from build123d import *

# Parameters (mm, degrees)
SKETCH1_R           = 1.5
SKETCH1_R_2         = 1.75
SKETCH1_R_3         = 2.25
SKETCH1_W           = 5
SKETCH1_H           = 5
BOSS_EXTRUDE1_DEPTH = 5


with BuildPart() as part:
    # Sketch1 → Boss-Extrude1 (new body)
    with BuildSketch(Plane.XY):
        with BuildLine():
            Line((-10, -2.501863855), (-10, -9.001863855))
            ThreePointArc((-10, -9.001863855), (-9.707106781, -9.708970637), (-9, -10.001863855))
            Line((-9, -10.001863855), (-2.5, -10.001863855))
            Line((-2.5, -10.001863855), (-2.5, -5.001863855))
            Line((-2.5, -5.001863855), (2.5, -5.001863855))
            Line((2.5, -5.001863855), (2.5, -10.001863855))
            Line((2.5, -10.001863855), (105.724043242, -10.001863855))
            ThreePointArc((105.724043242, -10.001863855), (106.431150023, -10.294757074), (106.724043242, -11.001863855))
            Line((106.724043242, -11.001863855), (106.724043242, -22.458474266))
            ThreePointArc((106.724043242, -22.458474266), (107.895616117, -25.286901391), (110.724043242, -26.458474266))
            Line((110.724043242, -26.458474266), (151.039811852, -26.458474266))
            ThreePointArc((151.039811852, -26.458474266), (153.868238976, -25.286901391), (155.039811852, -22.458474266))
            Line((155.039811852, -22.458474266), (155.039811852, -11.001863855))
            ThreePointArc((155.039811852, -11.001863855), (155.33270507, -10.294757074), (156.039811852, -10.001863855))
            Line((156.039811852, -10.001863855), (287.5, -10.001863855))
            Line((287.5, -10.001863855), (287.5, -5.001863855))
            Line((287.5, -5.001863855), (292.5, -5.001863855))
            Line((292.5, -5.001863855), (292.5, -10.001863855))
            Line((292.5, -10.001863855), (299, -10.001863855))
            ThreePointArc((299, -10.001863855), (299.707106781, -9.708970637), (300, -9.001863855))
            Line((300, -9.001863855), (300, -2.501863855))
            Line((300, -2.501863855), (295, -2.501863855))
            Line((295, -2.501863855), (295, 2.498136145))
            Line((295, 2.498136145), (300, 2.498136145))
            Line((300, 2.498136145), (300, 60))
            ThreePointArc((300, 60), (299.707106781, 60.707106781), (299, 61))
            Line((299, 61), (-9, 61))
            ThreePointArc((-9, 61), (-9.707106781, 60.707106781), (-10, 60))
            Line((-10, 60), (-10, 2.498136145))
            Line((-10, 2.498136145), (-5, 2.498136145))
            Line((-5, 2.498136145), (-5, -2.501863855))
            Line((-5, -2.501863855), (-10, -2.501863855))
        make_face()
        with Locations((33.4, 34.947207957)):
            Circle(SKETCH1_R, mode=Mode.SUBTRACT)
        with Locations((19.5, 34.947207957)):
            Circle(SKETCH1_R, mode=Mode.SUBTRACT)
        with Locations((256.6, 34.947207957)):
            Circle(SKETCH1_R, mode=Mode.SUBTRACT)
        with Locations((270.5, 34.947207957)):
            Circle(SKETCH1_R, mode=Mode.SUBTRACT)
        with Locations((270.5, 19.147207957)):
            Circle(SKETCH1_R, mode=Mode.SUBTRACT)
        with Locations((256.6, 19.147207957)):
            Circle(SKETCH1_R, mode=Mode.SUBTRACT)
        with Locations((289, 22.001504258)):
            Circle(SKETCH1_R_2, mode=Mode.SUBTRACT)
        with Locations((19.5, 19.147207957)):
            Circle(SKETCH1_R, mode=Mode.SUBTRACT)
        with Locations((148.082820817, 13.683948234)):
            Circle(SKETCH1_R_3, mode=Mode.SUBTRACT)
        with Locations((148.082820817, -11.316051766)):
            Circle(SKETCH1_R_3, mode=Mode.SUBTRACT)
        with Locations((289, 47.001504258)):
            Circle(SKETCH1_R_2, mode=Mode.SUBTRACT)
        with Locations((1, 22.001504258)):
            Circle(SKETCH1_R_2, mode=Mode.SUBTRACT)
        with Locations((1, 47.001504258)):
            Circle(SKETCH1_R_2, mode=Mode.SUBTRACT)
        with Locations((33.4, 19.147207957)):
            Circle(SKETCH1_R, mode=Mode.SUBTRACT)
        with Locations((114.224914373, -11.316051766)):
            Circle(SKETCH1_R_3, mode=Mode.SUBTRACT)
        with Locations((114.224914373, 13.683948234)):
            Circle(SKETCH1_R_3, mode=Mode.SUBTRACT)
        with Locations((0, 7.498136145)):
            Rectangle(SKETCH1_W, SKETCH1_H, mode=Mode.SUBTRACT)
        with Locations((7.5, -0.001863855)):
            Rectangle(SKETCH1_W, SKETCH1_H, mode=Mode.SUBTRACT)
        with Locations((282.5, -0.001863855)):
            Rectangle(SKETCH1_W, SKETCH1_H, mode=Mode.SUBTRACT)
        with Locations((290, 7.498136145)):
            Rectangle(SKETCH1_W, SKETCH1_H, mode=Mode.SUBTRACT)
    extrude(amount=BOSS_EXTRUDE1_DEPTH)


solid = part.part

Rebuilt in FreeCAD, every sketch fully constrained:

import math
import FreeCAD as App
import Part
import Sketcher


def add_polygon(sketch, points):
    """Adds a closed chain of lines whose ends are joined by coincident constraints."""
    first, n = sketch.GeometryCount, len(points)
    for a, b in zip(points, points[1:] + points[:1]):
        sketch.addGeometry(Part.LineSegment(App.Vector(*a, 0), App.Vector(*b, 0)), False)
    for i in range(n):
        sketch.addConstraint(Sketcher.Constraint("Coincident", first + i, 2, first + (i + 1) % n, 1))

doc = App.newDocument("Part")
params = doc.addObject("Spreadsheet::Sheet", "Params")
for row, (alias, value) in enumerate([
    ("sketch1_diameter", "3 mm"),
    ("sketch1_radius", "1 mm"),
    ("sketch1_radius2", "4 mm"),
    ("sketch1_diameter2", "4.5 mm"),
    ("sketch1_diameter3", "3.5 mm"),
    ("pad1_length", "5 mm"),
], start=1):
    params.set(f"A{row}", alias)
    params.set(f"B{row}", "=" + value)
    params.setAlias(f"B{row}", alias)

body = doc.addObject("PartDesign::Body", "Body")

# Sketch on XY plane
sketch1 = body.newObject("Sketcher::SketchObject", "Sketch")
sketch1.AttachmentSupport = (doc.getObject("XY_Plane"), [""])
sketch1.MapMode = "FlatFace"
sketch1.addGeometry(Part.LineSegment(App.Vector(-10, -2.5, 0), App.Vector(-10, -9, 0)), False)  # 0
sketch1.addGeometry(Part.ArcOfCircle(Part.Circle(App.Vector(-9, -9, 0), App.Vector(0, 0, 1), 1), math.radians(180), math.radians(270)), False)  # 1
sketch1.addGeometry(Part.LineSegment(App.Vector(-9, -10, 0), App.Vector(-2.5, -10, 0)), False)  # 2
sketch1.addGeometry(Part.LineSegment(App.Vector(-2.5, -10, 0), App.Vector(-2.5, -5, 0)), False)  # 3
sketch1.addGeometry(Part.LineSegment(App.Vector(-2.5, -5, 0), App.Vector(2.5, -5, 0)), False)  # 4
sketch1.addGeometry(Part.LineSegment(App.Vector(2.5, -5, 0), App.Vector(2.5, -10, 0)), False)  # 5
sketch1.addGeometry(Part.LineSegment(App.Vector(2.5, -10, 0), App.Vector(105.7, -10, 0)), False)  # 6
sketch1.addGeometry(Part.ArcOfCircle(Part.Circle(App.Vector(105.7, -11, 0), App.Vector(0, 0, 1), 1), math.radians(0), math.radians(90)), False)  # 7
sketch1.addGeometry(Part.LineSegment(App.Vector(106.7, -11, 0), App.Vector(106.7, -22.5, 0)), False)  # 8
sketch1.addGeometry(Part.ArcOfCircle(Part.Circle(App.Vector(110.7, -22.5, 0), App.Vector(0, 0, 1), 4), math.radians(180), math.radians(270)), False)  # 9
sketch1.addGeometry(Part.LineSegment(App.Vector(110.7, -26.5, 0), App.Vector(151, -26.5, 0)), False)  # 10
sketch1.addGeometry(Part.ArcOfCircle(Part.Circle(App.Vector(151, -22.5, 0), App.Vector(0, 0, 1), 4), math.radians(-90), math.radians(0)), False)  # 11
sketch1.addGeometry(Part.LineSegment(App.Vector(155, -22.5, 0), App.Vector(155, -11, 0)), False)  # 12
sketch1.addGeometry(Part.ArcOfCircle(Part.Circle(App.Vector(156, -11, 0), App.Vector(0, 0, 1), 1), math.radians(90), math.radians(180)), False)  # 13
sketch1.addGeometry(Part.LineSegment(App.Vector(156, -10, 0), App.Vector(287.5, -10, 0)), False)  # 14
sketch1.addGeometry(Part.LineSegment(App.Vector(287.5, -10, 0), App.Vector(287.5, -5, 0)), False)  # 15
sketch1.addGeometry(Part.LineSegment(App.Vector(287.5, -5, 0), App.Vector(292.5, -5, 0)), False)  # 16
sketch1.addGeometry(Part.LineSegment(App.Vector(292.5, -5, 0), App.Vector(292.5, -10, 0)), False)  # 17
sketch1.addGeometry(Part.LineSegment(App.Vector(292.5, -10, 0), App.Vector(299, -10, 0)), False)  # 18
sketch1.addGeometry(Part.ArcOfCircle(Part.Circle(App.Vector(299, -9, 0), App.Vector(0, 0, 1), 1), math.radians(-90), math.radians(0)), False)  # 19
sketch1.addGeometry(Part.LineSegment(App.Vector(300, -9, 0), App.Vector(300, -2.5, 0)), False)  # 20
sketch1.addGeometry(Part.LineSegment(App.Vector(300, -2.5, 0), App.Vector(295, -2.5, 0)), False)  # 21
sketch1.addGeometry(Part.LineSegment(App.Vector(295, -2.5, 0), App.Vector(295, 2.5, 0)), False)  # 22
sketch1.addGeometry(Part.LineSegment(App.Vector(295, 2.5, 0), App.Vector(300, 2.5, 0)), False)  # 23
sketch1.addGeometry(Part.LineSegment(App.Vector(300, 2.5, 0), App.Vector(300, 60, 0)), False)  # 24
sketch1.addGeometry(Part.ArcOfCircle(Part.Circle(App.Vector(299, 60, 0), App.Vector(0, 0, 1), 1), math.radians(0), math.radians(90)), False)  # 25
sketch1.addGeometry(Part.LineSegment(App.Vector(299, 61, 0), App.Vector(-9, 61, 0)), False)  # 26
sketch1.addGeometry(Part.ArcOfCircle(Part.Circle(App.Vector(-9, 60, 0), App.Vector(0, 0, 1), 1), math.radians(90), math.radians(180)), False)  # 27
sketch1.addGeometry(Part.LineSegment(App.Vector(-10, 60, 0), App.Vector(-10, 2.5, 0)), False)  # 28
sketch1.addGeometry(Part.LineSegment(App.Vector(-10, 2.5, 0), App.Vector(-5, 2.5, 0)), False)  # 29
sketch1.addGeometry(Part.LineSegment(App.Vector(-5, 2.5, 0), App.Vector(-5, -2.5, 0)), False)  # 30
sketch1.addGeometry(Part.LineSegment(App.Vector(-5, -2.5, 0), App.Vector(-10, -2.5, 0)), False)  # 31
add_polygon(sketch1, [(10, -2.5), (5, -2.5), (5, 2.5), (10, 2.5)])  # lines 32-35
sketch1.addGeometry(Part.Circle(App.Vector(114.2, -11.3, 0), App.Vector(0, 0, 1), 2.2), False)  # 36
add_polygon(sketch1, [(2.5, 5), (-2.5, 5), (-2.5, 10), (2.5, 10)])  # lines 37-40
sketch1.addGeometry(Part.Circle(App.Vector(114.2, 13.7, 0), App.Vector(0, 0, 1), 2.2), False)  # 41
sketch1.addGeometry(Part.Circle(App.Vector(148.1, -11.3, 0), App.Vector(0, 0, 1), 2.2), False)  # 42
add_polygon(sketch1, [(285, -2.5), (280, -2.5), (280, 2.5), (285, 2.5)])  # lines 43-46
sketch1.addGeometry(Part.Circle(App.Vector(148.1, 13.7, 0), App.Vector(0, 0, 1), 2.2), False)  # 47
add_polygon(sketch1, [(292.5, 5), (287.5, 5), (287.5, 10), (292.5, 10)])  # lines 48-51
sketch1.addGeometry(Part.Circle(App.Vector(19.5, 19.1, 0), App.Vector(0, 0, 1), 1.5), False)  # 52
sketch1.addGeometry(Part.Circle(App.Vector(33.4, 19.1, 0), App.Vector(0, 0, 1), 1.5), False)  # 53
sketch1.addGeometry(Part.Circle(App.Vector(1, 22, 0), App.Vector(0, 0, 1), 1.8), False)  # 54
sketch1.addGeometry(Part.Circle(App.Vector(19.5, 34.9, 0), App.Vector(0, 0, 1), 1.5), False)  # 55
sketch1.addGeometry(Part.Circle(App.Vector(33.4, 34.9, 0), App.Vector(0, 0, 1), 1.5), False)  # 56
sketch1.addGeometry(Part.Circle(App.Vector(1, 47, 0), App.Vector(0, 0, 1), 1.8), False)  # 57
sketch1.addGeometry(Part.Circle(App.Vector(256.6, 19.1, 0), App.Vector(0, 0, 1), 1.5), False)  # 58
sketch1.addGeometry(Part.Circle(App.Vector(270.5, 19.1, 0), App.Vector(0, 0, 1), 1.5), False)  # 59
sketch1.addGeometry(Part.Circle(App.Vector(289, 22, 0), App.Vector(0, 0, 1), 1.8), False)  # 60
sketch1.addGeometry(Part.Circle(App.Vector(256.6, 34.9, 0), App.Vector(0, 0, 1), 1.5), False)  # 61
sketch1.addGeometry(Part.Circle(App.Vector(270.5, 34.9, 0), App.Vector(0, 0, 1), 1.5), False)  # 62
sketch1.addGeometry(Part.Circle(App.Vector(289, 47, 0), App.Vector(0, 0, 1), 1.8), False)  # 63
sketch1.addConstraint([
    Sketcher.Constraint("Tangent", 0, 2, 1, 1),
    Sketcher.Constraint("Tangent", 1, 2, 2, 1),
    Sketcher.Constraint("Coincident", 2, 2, 3, 1),
    Sketcher.Constraint("Coincident", 3, 2, 4, 1),
    Sketcher.Constraint("Coincident", 4, 2, 5, 1),
    Sketcher.Constraint("Coincident", 5, 2, 6, 1),
    Sketcher.Constraint("Tangent", 6, 2, 7, 2),
    Sketcher.Constraint("Tangent", 7, 1, 8, 1),
    Sketcher.Constraint("Tangent", 8, 2, 9, 1),
    Sketcher.Constraint("Tangent", 9, 2, 10, 1),
    Sketcher.Constraint("Tangent", 10, 2, 11, 1),
    Sketcher.Constraint("Tangent", 11, 2, 12, 1),
    Sketcher.Constraint("Tangent", 12, 2, 13, 2),
    Sketcher.Constraint("Tangent", 13, 1, 14, 1),
    Sketcher.Constraint("Coincident", 14, 2, 15, 1),
    Sketcher.Constraint("Coincident", 15, 2, 16, 1),
    Sketcher.Constraint("Coincident", 16, 2, 17, 1),
    Sketcher.Constraint("Coincident", 17, 2, 18, 1),
    Sketcher.Constraint("Tangent", 18, 2, 19, 1),
    Sketcher.Constraint("Tangent", 19, 2, 20, 1),
    Sketcher.Constraint("Coincident", 20, 2, 21, 1),
    Sketcher.Constraint("Coincident", 21, 2, 22, 1),
    Sketcher.Constraint("Coincident", 22, 2, 23, 1),
    Sketcher.Constraint("Coincident", 23, 2, 24, 1),
    Sketcher.Constraint("Tangent", 24, 2, 25, 1),
    Sketcher.Constraint("Tangent", 25, 2, 26, 1),
    Sketcher.Constraint("Tangent", 26, 2, 27, 1),
    Sketcher.Constraint("Tangent", 27, 2, 28, 1),
    Sketcher.Constraint("Coincident", 28, 2, 29, 1),
    Sketcher.Constraint("Coincident", 29, 2, 30, 1),
    Sketcher.Constraint("Coincident", 30, 2, 31, 1),
    Sketcher.Constraint("Coincident", 31, 2, 0, 1),
    Sketcher.Constraint("Vertical", 0),
    Sketcher.Constraint("Horizontal", 2),
    Sketcher.Constraint("Vertical", 3),
    Sketcher.Constraint("Horizontal", 4),
    Sketcher.Constraint("Vertical", 5),
    Sketcher.Constraint("Horizontal", 6),
    Sketcher.Constraint("Vertical", 8),
    Sketcher.Constraint("Horizontal", 10),
    Sketcher.Constraint("Vertical", 12),
    Sketcher.Constraint("Horizontal", 14),
    Sketcher.Constraint("Vertical", 15),
    Sketcher.Constraint("Horizontal", 16),
    Sketcher.Constraint("Vertical", 17),
    Sketcher.Constraint("Horizontal", 18),
    Sketcher.Constraint("Vertical", 20),
    Sketcher.Constraint("Horizontal", 21),
    Sketcher.Constraint("Vertical", 22),
    Sketcher.Constraint("Horizontal", 23),
    Sketcher.Constraint("Vertical", 24),
    Sketcher.Constraint("Horizontal", 26),
    Sketcher.Constraint("Vertical", 28),
    Sketcher.Constraint("Horizontal", 29),
    Sketcher.Constraint("Vertical", 30),
    Sketcher.Constraint("Horizontal", 31),
    Sketcher.Constraint("Horizontal", 32),
    Sketcher.Constraint("Vertical", 33),
    Sketcher.Constraint("Horizontal", 34),
    Sketcher.Constraint("Vertical", 35),
    Sketcher.Constraint("Horizontal", 37),
    Sketcher.Constraint("Vertical", 38),
    Sketcher.Constraint("Horizontal", 39),
    Sketcher.Constraint("Vertical", 40),
    Sketcher.Constraint("Horizontal", 43),
    Sketcher.Constraint("Vertical", 44),
    Sketcher.Constraint("Horizontal", 45),
    Sketcher.Constraint("Vertical", 46),
    Sketcher.Constraint("Horizontal", 48),
    Sketcher.Constraint("Vertical", 49),
    Sketcher.Constraint("Horizontal", 50),
    Sketcher.Constraint("Vertical", 51),
    Sketcher.Constraint("Equal", 1, 7),
    Sketcher.Constraint("Equal", 9, 11),
    Sketcher.Constraint("Equal", 7, 13),
    Sketcher.Constraint("Equal", 13, 19),
    Sketcher.Constraint("Equal", 19, 25),
    Sketcher.Constraint("Equal", 25, 27),
    Sketcher.Constraint("Equal", 36, 41),
    Sketcher.Constraint("Equal", 41, 42),
    Sketcher.Constraint("Equal", 42, 47),
    Sketcher.Constraint("Equal", 52, 53),
    Sketcher.Constraint("Equal", 53, 55),
    Sketcher.Constraint("Equal", 55, 56),
    Sketcher.Constraint("Equal", 54, 57),
    Sketcher.Constraint("Equal", 56, 58),
    Sketcher.Constraint("Equal", 58, 59),
    Sketcher.Constraint("Equal", 57, 60),
    Sketcher.Constraint("Equal", 59, 61),
    Sketcher.Constraint("Equal", 61, 62),
    Sketcher.Constraint("Equal", 60, 63),
    Sketcher.Constraint("Symmetric", 2, 2, 5, 2, -2),
    Sketcher.Constraint("Symmetric", 30, 2, 32, 2, -2),
    Sketcher.Constraint("Symmetric", 28, 2, 34, 2, -2),
    Sketcher.Constraint("Horizontal", 7, 3, 13, 3),
    Sketcher.Constraint("Horizontal", 1, 3, 19, 3),
    Sketcher.Constraint("Horizontal", 36, 3, 42, 3),
    Sketcher.Constraint("Horizontal", 41, 3, 47, 3),
    Sketcher.Constraint("Horizontal", 52, 3, 53, 3),
    Sketcher.Constraint("Horizontal", 55, 3, 56, 3),
    Sketcher.Constraint("Horizontal", 53, 3, 58, 3),
    Sketcher.Constraint("Horizontal", 58, 3, 59, 3),
    Sketcher.Constraint("Horizontal", 54, 3, 60, 3),
    Sketcher.Constraint("Horizontal", 56, 3, 61, 3),
    Sketcher.Constraint("Horizontal", 61, 3, 62, 3),
    Sketcher.Constraint("Horizontal", 57, 3, 63, 3),
    Sketcher.Constraint("Horizontal", 4, 2, 15, 2),
    Sketcher.Constraint("Horizontal", 23, 2, 28, 2),
    Sketcher.Constraint("Horizontal", 21, 2, 30, 2),
    Sketcher.Constraint("Horizontal", 35, 2, 43, 2),
    Sketcher.Constraint("Horizontal", 34, 2, 44, 2),
    Sketcher.Constraint("Horizontal", 40, 2, 48, 2),
    Sketcher.Constraint("Horizontal", 39, 2, 49, 2),
    Sketcher.Constraint("Vertical", 19, 3, 25, 3),
    Sketcher.Constraint("Vertical", 1, 3, 27, 3),
    Sketcher.Constraint("Vertical", 36, 3, 41, 3),
    Sketcher.Constraint("Vertical", 42, 3, 47, 3),
    Sketcher.Constraint("Vertical", 52, 3, 55, 3),
    Sketcher.Constraint("Vertical", 53, 3, 56, 3),
    Sketcher.Constraint("Vertical", 54, 3, 57, 3),
    Sketcher.Constraint("Vertical", 58, 3, 61, 3),
    Sketcher.Constraint("Vertical", 59, 3, 62, 3),
    Sketcher.Constraint("Vertical", 60, 3, 63, 3),
    Sketcher.Constraint("Vertical", 3, 2, 37, 2),
    Sketcher.Constraint("Vertical", 5, 2, 39, 2),
    Sketcher.Constraint("Vertical", 15, 2, 48, 2),
    Sketcher.Constraint("Vertical", 17, 2, 50, 2),
    Sketcher.Constraint("Equal", 4, 16),
    Sketcher.Constraint("Equal", 2, 18),
    Sketcher.Constraint("Equal", 16, 21),
    Sketcher.Constraint("Equal", 23, 29),
    Sketcher.Constraint("Equal", 39, 43),
    Sketcher.Constraint("Equal", 18, 0),
    Sketcher.Constraint("Equal", 50, 3),
    Sketcher.Constraint("Equal", 17, 22),
    Sketcher.Constraint("Equal", 35, 38),
    Sketcher.Constraint("Diameter", 52, 3.0),
    Sketcher.Constraint("Radius", 1, 1.0),
    Sketcher.Constraint("Radius", 9, 4.0),
    Sketcher.Constraint("Diameter", 36, 4.5),
    Sketcher.Constraint("Diameter", 54, 3.5),
    Sketcher.Constraint("DistanceX", 4, 1, 4, 2, 5.0),
    Sketcher.Constraint("DistanceX", 26, 2, 26, 1, 308.0),
    Sketcher.Constraint("DistanceX", 2, 1, 2, 2, 6.5),
    Sketcher.Constraint("DistanceY", -1, 1, 25, 3, 60.0),
    Sketcher.Constraint("DistanceX", -1, 1, 54, 3, 1.0),
    Sketcher.Constraint("DistanceX", -1, 1, 60, 3, 289.0),
    Sketcher.Constraint("DistanceX", -1, 1, 43, 2, 280.0),
    Sketcher.Constraint("DistanceX", -1, 1, 52, 3, 19.5),
    Sketcher.Constraint("DistanceX", -1, 1, 53, 3, 33.4),
    Sketcher.Constraint("DistanceX", -1, 1, 58, 3, 256.6),
    Sketcher.Constraint("DistanceX", -1, 1, 59, 3, 270.5),
    Sketcher.Constraint("DistanceX", 10, 1, 10, 2, 40.315769),
    Sketcher.Constraint("DistanceX", 14, 1, 14, 2, 131.460188),
    Sketcher.Constraint("DistanceY", 8, 2, 8, 1, 11.45661),
    Sketcher.Constraint("DistanceY", 24, 1, 24, 2, 57.501864),
    Sketcher.Constraint("DistanceY", 36, 3, -1, 1, 11.316052),
    Sketcher.Constraint("DistanceY", -1, 1, 41, 3, 13.683948),
    Sketcher.Constraint("DistanceX", -1, 1, 42, 3, 148.082821),
    Sketcher.Constraint("DistanceX", -1, 1, 36, 3, 114.224914),
    Sketcher.Constraint("DistanceY", -1, 1, 52, 3, 19.147208),
    Sketcher.Constraint("DistanceY", -1, 1, 54, 3, 22.001504),
    Sketcher.Constraint("DistanceY", -1, 1, 55, 3, 34.947208),
    Sketcher.Constraint("DistanceY", -1, 1, 57, 3, 47.001504),
    Sketcher.Constraint("DistanceY", -1, 1, 37, 2, 4.998136),
])
sketch1.setExpression("Constraints[152]", "Params.sketch1_diameter")
sketch1.setExpression("Constraints[153]", "Params.sketch1_radius")
sketch1.setExpression("Constraints[154]", "Params.sketch1_radius2")
sketch1.setExpression("Constraints[155]", "Params.sketch1_diameter2")
sketch1.setExpression("Constraints[156]", "Params.sketch1_diameter3")
pad1 = body.newObject("PartDesign::Pad", "Pad")
pad1.Profile = sketch1
pad1.setExpression("Length", "Params.pad1_length")

doc.recompute()
